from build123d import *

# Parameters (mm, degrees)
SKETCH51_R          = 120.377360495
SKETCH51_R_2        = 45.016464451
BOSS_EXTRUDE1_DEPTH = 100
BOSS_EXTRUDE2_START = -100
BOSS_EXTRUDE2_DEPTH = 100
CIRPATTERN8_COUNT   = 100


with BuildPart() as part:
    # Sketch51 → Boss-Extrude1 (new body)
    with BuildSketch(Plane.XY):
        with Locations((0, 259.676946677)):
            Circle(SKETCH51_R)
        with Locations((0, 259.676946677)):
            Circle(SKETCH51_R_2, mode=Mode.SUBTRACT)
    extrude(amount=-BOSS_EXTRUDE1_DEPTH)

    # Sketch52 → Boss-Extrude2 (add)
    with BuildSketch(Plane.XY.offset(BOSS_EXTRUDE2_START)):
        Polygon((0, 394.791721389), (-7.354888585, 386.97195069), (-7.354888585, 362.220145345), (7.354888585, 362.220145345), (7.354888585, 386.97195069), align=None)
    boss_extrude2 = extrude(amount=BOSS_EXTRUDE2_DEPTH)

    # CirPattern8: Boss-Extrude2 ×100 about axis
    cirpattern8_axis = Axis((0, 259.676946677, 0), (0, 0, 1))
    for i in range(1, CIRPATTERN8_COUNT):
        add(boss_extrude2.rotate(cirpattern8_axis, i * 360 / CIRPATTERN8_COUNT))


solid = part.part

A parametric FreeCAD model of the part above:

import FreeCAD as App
import Part
import Sketcher

V = App.Vector
Q = App.Units.Quantity

doc = App.newDocument("Part")
body = doc.addObject("PartDesign::Body", "Body")

# Sketch on XY plane
sketch1 = body.newObject("Sketcher::SketchObject", "Sketch")
sketch1.AttachmentSupport = (doc.getObject("XY_Plane"), [""])
sketch1.MapMode = "FlatFace"
sketch1.addGeometry([
    Part.Circle(V(0, 259.676947, 0), V(0, 0, 1), 120.37736),
    Part.Circle(V(0, 259.676947, 0), V(0, 0, 1), 45.016464),
], False)
sketch1.addConstraint([
    Sketcher.Constraint("Coincident", 1, 3, 0, 3),
    Sketcher.Constraint("PointOnObject", 0, 3, -2),
    Sketcher.Constraint("Diameter", 0, Q("240.754721 mm")),
    Sketcher.Constraint("Diameter", 1, Q("90.032929 mm")),
    Sketcher.Constraint("DistanceY", -1, 1, 0, 3, Q("259.676947 mm")),
])
pad1 = body.newObject("PartDesign::Pad", "Pad")
pad1.Profile = sketch1
pad1.Length = 100
pad1.Reversed = True

# Sketch on XY plane
sketch2 = body.newObject("Sketcher::SketchObject", "Sketch001")
sketch2.AttachmentSupport = (doc.getObject("XY_Plane"), [""])
sketch2.MapMode = "FlatFace"
sketch2.AttachmentOffset = App.Placement(V(0, 0, -100), App.Rotation())
sketch2.addGeometry([
    Part.LineSegment(V(0, 394.791721, 0), V(-7.354889, 386.971951, 0)),  # 0
    Part.LineSegment(V(-7.354889, 386.971951, 0), V(-7.354889, 362.220145, 0)),  # 1
    Part.LineSegment(V(-7.354889, 362.220145, 0), V(7.354889, 362.220145, 0)),  # 2
    Part.LineSegment(V(7.354889, 362.220145, 0), V(7.354889, 386.971951, 0)),  # 3
    Part.LineSegment(V(7.354889, 386.971951, 0), V(0, 394.791721, 0)),  # 4
], False)
sketch2.addConstraint([
    Sketcher.Constraint("Coincident", 0, 2, 1, 1),
    Sketcher.Constraint("Coincident", 1, 2, 2, 1),
    Sketcher.Constraint("Coincident", 2, 2, 3, 1),
    Sketcher.Constraint("Coincident", 3, 2, 4, 1),
    Sketcher.Constraint("Coincident", 4, 2, 0, 1),
    Sketcher.Constraint("Vertical", 1),
    Sketcher.Constraint("Horizontal", 2),
    Sketcher.Constraint("Vertical", 3),
    Sketcher.Constraint("Symmetric", 0, 2, 3, 2, -2),
    Sketcher.Constraint("PointOnObject", 4, 2, -2),
    Sketcher.Constraint("Distance", 0, Q("10.735139 mm")),
    Sketcher.Constraint("DistanceX", 2, 1, 2, 2, Q("14.709777 mm")),
    Sketcher.Constraint("DistanceY", 1, 2, 1, 1, Q("24.751805 mm")),
    Sketcher.Constraint("DistanceY", -1, 1, 0, 2, Q("386.971951 mm")),
])
pad2 = body.newObject("PartDesign::Pad", "Pad001")
pad2.Profile = sketch2
pad2.Length = 100
doc.recompute()

datumline = body.newObject("PartDesign::Line", "DatumLine")
datumline.Placement = App.Placement(V(0, 259.676947, 0), App.Rotation(V(0, 0, 1), V(0, 0, 1)))
polarpattern = body.newObject("PartDesign::PolarPattern", "PolarPattern")
polarpattern.Originals = [pad2]
polarpattern.Axis = (datumline, [""])
polarpattern.Angle = 360
polarpattern.Occurrences = 100
body.Tip = polarpattern

doc.recompute()
